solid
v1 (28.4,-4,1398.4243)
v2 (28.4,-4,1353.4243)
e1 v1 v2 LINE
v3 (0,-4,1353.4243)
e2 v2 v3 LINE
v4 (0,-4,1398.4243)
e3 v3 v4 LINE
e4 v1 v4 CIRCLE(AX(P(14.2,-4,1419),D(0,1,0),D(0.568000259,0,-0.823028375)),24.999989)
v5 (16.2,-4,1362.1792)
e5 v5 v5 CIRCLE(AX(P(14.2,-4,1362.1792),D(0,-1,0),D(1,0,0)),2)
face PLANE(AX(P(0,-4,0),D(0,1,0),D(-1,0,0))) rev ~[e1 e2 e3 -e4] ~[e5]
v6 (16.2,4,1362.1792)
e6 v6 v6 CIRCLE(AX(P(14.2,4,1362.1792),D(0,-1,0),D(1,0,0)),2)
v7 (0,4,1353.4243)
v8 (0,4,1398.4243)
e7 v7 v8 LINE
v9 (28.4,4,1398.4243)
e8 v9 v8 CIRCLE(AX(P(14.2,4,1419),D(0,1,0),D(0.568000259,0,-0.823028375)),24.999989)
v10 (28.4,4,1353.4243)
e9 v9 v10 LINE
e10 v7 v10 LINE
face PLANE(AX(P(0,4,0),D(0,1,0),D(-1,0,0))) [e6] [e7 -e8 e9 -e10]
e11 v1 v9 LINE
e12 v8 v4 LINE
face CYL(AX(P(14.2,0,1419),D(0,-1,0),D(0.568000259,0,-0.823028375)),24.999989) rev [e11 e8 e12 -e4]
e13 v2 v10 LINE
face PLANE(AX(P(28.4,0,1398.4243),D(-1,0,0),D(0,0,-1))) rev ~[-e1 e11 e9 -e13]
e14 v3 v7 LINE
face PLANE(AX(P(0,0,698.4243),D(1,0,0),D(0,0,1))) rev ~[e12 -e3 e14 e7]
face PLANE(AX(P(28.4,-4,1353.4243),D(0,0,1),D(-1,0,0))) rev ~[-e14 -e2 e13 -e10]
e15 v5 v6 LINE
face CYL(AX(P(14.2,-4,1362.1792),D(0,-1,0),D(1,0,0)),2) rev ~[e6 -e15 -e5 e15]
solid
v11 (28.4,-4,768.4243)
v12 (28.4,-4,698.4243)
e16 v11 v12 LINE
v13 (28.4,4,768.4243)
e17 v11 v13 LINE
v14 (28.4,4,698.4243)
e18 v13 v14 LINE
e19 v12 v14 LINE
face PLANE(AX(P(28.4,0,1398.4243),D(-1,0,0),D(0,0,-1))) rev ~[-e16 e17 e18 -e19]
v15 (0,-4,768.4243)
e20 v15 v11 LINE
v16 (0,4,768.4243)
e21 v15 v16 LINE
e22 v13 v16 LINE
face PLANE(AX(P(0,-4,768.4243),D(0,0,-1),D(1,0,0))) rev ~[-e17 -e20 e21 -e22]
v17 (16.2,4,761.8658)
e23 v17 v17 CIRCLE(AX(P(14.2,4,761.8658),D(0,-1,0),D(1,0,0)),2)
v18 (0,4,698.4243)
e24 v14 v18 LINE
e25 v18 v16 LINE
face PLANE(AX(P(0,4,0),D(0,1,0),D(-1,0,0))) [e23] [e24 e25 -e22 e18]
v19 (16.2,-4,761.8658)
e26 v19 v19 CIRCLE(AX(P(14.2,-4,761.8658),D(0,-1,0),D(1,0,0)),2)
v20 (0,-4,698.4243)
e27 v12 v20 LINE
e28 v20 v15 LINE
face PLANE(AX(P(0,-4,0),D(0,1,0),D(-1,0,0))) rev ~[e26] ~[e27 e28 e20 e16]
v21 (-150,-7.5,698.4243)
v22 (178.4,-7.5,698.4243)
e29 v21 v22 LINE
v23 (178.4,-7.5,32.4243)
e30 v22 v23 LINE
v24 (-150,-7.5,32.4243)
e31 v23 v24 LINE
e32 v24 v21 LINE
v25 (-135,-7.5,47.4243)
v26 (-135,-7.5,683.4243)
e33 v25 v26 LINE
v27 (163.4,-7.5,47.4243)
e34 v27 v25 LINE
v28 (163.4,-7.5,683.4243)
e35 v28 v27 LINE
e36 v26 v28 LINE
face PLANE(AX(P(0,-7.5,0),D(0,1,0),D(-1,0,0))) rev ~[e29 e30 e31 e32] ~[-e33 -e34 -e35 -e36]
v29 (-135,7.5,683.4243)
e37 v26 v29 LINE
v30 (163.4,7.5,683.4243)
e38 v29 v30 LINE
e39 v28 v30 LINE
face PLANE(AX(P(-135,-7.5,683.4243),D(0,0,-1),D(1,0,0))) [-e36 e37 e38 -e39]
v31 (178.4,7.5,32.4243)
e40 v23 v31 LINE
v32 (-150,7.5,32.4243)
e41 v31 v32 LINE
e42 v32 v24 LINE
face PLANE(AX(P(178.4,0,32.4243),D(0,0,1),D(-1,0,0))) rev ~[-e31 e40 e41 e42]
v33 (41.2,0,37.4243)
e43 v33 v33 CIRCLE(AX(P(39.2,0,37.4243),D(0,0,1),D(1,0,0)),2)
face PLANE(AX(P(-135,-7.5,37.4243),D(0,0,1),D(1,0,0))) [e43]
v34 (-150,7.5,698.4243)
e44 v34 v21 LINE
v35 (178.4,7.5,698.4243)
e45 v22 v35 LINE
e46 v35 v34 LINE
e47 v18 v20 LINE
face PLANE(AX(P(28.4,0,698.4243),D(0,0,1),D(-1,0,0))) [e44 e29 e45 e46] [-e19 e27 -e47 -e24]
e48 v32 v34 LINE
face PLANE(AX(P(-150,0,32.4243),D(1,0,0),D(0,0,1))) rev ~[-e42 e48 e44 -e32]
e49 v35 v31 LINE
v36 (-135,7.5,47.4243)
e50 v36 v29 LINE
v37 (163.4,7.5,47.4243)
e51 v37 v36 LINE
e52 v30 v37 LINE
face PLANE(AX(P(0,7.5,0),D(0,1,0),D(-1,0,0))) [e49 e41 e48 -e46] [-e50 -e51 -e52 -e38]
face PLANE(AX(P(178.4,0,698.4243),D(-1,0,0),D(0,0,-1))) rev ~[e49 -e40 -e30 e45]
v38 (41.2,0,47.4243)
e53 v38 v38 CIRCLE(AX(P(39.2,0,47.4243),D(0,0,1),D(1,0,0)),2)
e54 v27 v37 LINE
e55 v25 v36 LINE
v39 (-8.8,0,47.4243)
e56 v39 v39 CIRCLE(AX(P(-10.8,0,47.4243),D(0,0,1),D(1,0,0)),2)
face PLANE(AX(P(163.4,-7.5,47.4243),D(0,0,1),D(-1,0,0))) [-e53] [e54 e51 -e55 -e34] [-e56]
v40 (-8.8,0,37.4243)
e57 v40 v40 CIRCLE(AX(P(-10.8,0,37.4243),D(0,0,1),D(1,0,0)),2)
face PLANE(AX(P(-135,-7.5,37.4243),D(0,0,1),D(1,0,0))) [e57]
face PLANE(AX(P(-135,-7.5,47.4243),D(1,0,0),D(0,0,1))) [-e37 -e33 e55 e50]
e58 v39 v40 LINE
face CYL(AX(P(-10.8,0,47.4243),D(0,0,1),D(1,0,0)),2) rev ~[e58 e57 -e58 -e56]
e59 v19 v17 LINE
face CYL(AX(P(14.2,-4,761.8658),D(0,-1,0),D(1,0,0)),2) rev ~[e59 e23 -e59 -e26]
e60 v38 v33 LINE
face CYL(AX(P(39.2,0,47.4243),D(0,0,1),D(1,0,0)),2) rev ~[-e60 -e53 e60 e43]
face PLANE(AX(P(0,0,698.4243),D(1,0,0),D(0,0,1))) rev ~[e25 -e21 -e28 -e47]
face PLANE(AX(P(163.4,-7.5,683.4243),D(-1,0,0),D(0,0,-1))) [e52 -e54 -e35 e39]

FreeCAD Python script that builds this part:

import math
import FreeCAD as App
import Part
import Sketcher


def add_polygon(sketch, points):
    """Adds a closed chain of lines whose ends are joined by coincident constraints."""
    first, n = sketch.GeometryCount, len(points)
    for a, b in zip(points, points[1:] + points[:1]):
        sketch.addGeometry(Part.LineSegment(App.Vector(*a, 0), App.Vector(*b, 0)), False)
    for i in range(n):
        sketch.addConstraint(Sketcher.Constraint("Coincident", first + i, 2, first + (i + 1) % n, 1))

doc = App.newDocument("Part")
body = doc.addObject("PartDesign::Body", "Body")
body.AllowCompound = True

# Sketch on XZ plane
sketch1 = body.newObject("Sketcher::SketchObject", "Sketch")
sketch1.AttachmentSupport = (doc.getObject("XZ_Plane"), [""])
sketch1.MapMode = "FlatFace"
add_polygon(sketch1, [(-150, 698), (178, 698), (178, 32), (-150, 32)])  # lines 0-3
sketch1.addConstraint(Sketcher.Constraint("Horizontal", 0))
sketch1.addConstraint(Sketcher.Constraint("Vertical", 1))
sketch1.addConstraint(Sketcher.Constraint("Horizontal", 2))
sketch1.addConstraint(Sketcher.Constraint("Vertical", 3))
sketch1.addConstraint(Sketcher.Constraint("DistanceY", 1, 2, 1, 1, 666.0))
sketch1.addConstraint(Sketcher.Constraint("DistanceX", 2, 2, -1, 1, 150.0))
sketch1.addConstraint(Sketcher.Constraint("DistanceX", 0, 1, 0, 2, 328.4))
sketch1.addConstraint(Sketcher.Constraint("DistanceY", -1, 1, 0, 2, 698.4243))
pad1 = body.newObject("PartDesign::Pad", "Pad")
pad1.Profile = sketch1
pad1.Length = 15
pad1.Midplane = True

# Sketch on XZ plane
sketch2 = body.newObject("Sketcher::SketchObject", "Sketch001")
sketch2.AttachmentSupport = (doc.getObject("XZ_Plane"), [""])
sketch2.MapMode = "FlatFace"
sketch2.addGeometry(Part.ArcOfCircle(Part.Circle(App.Vector(14, 1419, 0), App.Vector(0, 0, 1), 25), math.radians(-125), math.radians(-55)), False)
sketch2.addGeometry(Part.LineSegment(App.Vector(28, 1398, 0), App.Vector(28, 698, 0)), False)
sketch2.addGeometry(Part.LineSegment(App.Vector(28, 698, 0), App.Vector(0, 698, 0)), False)
sketch2.addGeometry(Part.LineSegment(App.Vector(0, 698, 0), App.Vector(0, 1398, 0)), False)
sketch2.addConstraint(Sketcher.Constraint("Coincident", 0, 2, 1, 1))
sketch2.addConstraint(Sketcher.Constraint("Coincident", 1, 2, 2, 1))
sketch2.addConstraint(Sketcher.Constraint("Coincident", 2, 2, 3, 1))
sketch2.addConstraint(Sketcher.Constraint("Coincident", 3, 2, 0, 1))
sketch2.addConstraint(Sketcher.Constraint("Vertical", 1))
sketch2.addConstraint(Sketcher.Constraint("Horizontal", 2))
sketch2.addConstraint(Sketcher.Constraint("Vertical", 3))
sketch2.addConstraint(Sketcher.Constraint("PointOnObject", 2, 2, -2))
sketch2.addConstraint(Sketcher.Constraint("Horizontal", 0, 2, 3, 2))
sketch2.addConstraint(Sketcher.Constraint("DistanceY", 1, 2, 1, 1, 700.0))
sketch2.addConstraint(Sketcher.Constraint("DistanceX", 2, 2, 2, 1, 28.4))
sketch2.addConstraint(Sketcher.Constraint("Radius", 0, 25.0))
sketch2.addConstraint(Sketcher.Constraint("DistanceY", -1, 1, 0, 3, 1419.0))
pad2 = body.newObject("PartDesign::Pad", "Pad001")
pad2.Profile = sketch2
pad2.Length = 8
pad2.Midplane = True

# Sketch on XZ plane
sketch3 = body.newObject("Sketcher::SketchObject", "Sketch002")
sketch3.AttachmentSupport = (doc.getObject("XZ_Plane"), [""])
sketch3.MapMode = "FlatFace"
sketch3.AttachmentOffset = App.Placement(App.Vector(0, 0, 7.5), App.Rotation())
add_polygon(sketch3, [(163, 683), (-135, 683), (-135, 47), (163, 47)])  # lines 0-3
sketch3.addConstraint(Sketcher.Constraint("Horizontal", 0))
sketch3.addConstraint(Sketcher.Constraint("Vertical", 1))
sketch3.addConstraint(Sketcher.Constraint("Horizontal", 2))
sketch3.addConstraint(Sketcher.Constraint("Vertical", 3))
sketch3.addConstraint(Sketcher.Constraint("DistanceY", 1, 2, 1, 1, 636.0))
sketch3.addConstraint(Sketcher.Constraint("DistanceX", 0, 2, 0, 1, 298.4))
sketch3.addConstraint(Sketcher.Constraint("DistanceX", 0, 2, -1, 1, 135.0))
sketch3.addConstraint(Sketcher.Constraint("DistanceY", -1, 1, 0, 2, 683.4243))
pocket1 = body.newObject("PartDesign::Pocket", "Pocket")
pocket1.Profile = sketch3
pocket1.Length = 15

# Sketch on XZ plane
sketch4 = body.newObject("Sketcher::SketchObject", "Sketch003")
sketch4.AttachmentSupport = (doc.getObject("XZ_Plane"), [""])
sketch4.MapMode = "FlatFace"
sketch4.AttachmentOffset = App.Placement(App.Vector(0, 0, 4), App.Rotation())
add_polygon(sketch4, [(0, 1353.4), (0, 768.4), (28.4, 768.4), (28.4, 1353.4)])  # lines 0-3
sketch4.addGeometry(Part.Circle(App.Vector(14.2, 1362.2, 0), App.Vector(0, 0, 1), 2), False)  # 4
sketch4.addGeometry(Part.Circle(App.Vector(14.2, 761.9, 0), App.Vector(0, 0, 1), 2), False)  # 5
sketch4.addConstraint(Sketcher.Constraint("Vertical", 0))
sketch4.addConstraint(Sketcher.Constraint("Horizontal", 1))
sketch4.addConstraint(Sketcher.Constraint("Vertical", 2))
sketch4.addConstraint(Sketcher.Constraint("Horizontal", 3))
sketch4.addConstraint(Sketcher.Constraint("Equal", 4, 5))
sketch4.addConstraint(Sketcher.Constraint("PointOnObject", 0, 2, -2))
sketch4.addConstraint(Sketcher.Constraint("Vertical", 4, 3, 5, 3))
sketch4.addConstraint(Sketcher.Constraint("Diameter", 4, 4.0))
sketch4.addConstraint(Sketcher.Constraint("DistanceY", 0, 2, 0, 1, 585.0))
sketch4.addConstraint(Sketcher.Constraint("DistanceX", 1, 1, 1, 2, 28.4))
sketch4.addConstraint(Sketcher.Constraint("DistanceX", -1, 1, 4, 3, 14.2))
sketch4.addConstraint(Sketcher.Constraint("DistanceY", 0, 2, 4, 3, 593.755))
sketch4.addConstraint(Sketcher.Constraint("DistanceY", -1, 1, 4, 3, 1362.1792))
sketch4.addConstraint(Sketcher.Constraint("DistanceY", -1, 1, 5, 3, 761.8658))
pocket2 = body.newObject("PartDesign::Pocket", "Pocket001")
pocket2.Profile = sketch4
pocket2.Length = 15

# Sketch on XY plane
sketch5 = body.newObject("Sketcher::SketchObject", "Sketch004")
sketch5.AttachmentSupport = (doc.getObject("XY_Plane"), [""])
sketch5.MapMode = "FlatFace"
sketch5.AttachmentOffset = App.Placement(App.Vector(0, 0, 47.4243), App.Rotation())
sketch5.addGeometry(Part.Circle(App.Vector(-10.8, 0, 0), App.Vector(0, 0, 1), 2), False)
sketch5.addGeometry(Part.Circle(App.Vector(39.2, 0, 0), App.Vector(0, 0, 1), 2), False)
sketch5.addConstraint(Sketcher.Constraint("Equal", 0, 1))
sketch5.addConstraint(Sketcher.Constraint("PointOnObject", 0, 3, -1))
sketch5.addConstraint(Sketcher.Constraint("PointOnObject", 1, 3, -1))
sketch5.addConstraint(Sketcher.Constraint("Diameter", 0, 4.0))
sketch5.addConstraint(Sketcher.Constraint("DistanceX", 0, 3, 1, 3, 50.0))
sketch5.addConstraint(Sketcher.Constraint("DistanceX", 0, 3, -1, 1, 10.8))
pocket3 = body.newObject("PartDesign::Pocket", "Pocket002")
pocket3.Profile = sketch5
pocket3.Length = 10

doc.recompute()
